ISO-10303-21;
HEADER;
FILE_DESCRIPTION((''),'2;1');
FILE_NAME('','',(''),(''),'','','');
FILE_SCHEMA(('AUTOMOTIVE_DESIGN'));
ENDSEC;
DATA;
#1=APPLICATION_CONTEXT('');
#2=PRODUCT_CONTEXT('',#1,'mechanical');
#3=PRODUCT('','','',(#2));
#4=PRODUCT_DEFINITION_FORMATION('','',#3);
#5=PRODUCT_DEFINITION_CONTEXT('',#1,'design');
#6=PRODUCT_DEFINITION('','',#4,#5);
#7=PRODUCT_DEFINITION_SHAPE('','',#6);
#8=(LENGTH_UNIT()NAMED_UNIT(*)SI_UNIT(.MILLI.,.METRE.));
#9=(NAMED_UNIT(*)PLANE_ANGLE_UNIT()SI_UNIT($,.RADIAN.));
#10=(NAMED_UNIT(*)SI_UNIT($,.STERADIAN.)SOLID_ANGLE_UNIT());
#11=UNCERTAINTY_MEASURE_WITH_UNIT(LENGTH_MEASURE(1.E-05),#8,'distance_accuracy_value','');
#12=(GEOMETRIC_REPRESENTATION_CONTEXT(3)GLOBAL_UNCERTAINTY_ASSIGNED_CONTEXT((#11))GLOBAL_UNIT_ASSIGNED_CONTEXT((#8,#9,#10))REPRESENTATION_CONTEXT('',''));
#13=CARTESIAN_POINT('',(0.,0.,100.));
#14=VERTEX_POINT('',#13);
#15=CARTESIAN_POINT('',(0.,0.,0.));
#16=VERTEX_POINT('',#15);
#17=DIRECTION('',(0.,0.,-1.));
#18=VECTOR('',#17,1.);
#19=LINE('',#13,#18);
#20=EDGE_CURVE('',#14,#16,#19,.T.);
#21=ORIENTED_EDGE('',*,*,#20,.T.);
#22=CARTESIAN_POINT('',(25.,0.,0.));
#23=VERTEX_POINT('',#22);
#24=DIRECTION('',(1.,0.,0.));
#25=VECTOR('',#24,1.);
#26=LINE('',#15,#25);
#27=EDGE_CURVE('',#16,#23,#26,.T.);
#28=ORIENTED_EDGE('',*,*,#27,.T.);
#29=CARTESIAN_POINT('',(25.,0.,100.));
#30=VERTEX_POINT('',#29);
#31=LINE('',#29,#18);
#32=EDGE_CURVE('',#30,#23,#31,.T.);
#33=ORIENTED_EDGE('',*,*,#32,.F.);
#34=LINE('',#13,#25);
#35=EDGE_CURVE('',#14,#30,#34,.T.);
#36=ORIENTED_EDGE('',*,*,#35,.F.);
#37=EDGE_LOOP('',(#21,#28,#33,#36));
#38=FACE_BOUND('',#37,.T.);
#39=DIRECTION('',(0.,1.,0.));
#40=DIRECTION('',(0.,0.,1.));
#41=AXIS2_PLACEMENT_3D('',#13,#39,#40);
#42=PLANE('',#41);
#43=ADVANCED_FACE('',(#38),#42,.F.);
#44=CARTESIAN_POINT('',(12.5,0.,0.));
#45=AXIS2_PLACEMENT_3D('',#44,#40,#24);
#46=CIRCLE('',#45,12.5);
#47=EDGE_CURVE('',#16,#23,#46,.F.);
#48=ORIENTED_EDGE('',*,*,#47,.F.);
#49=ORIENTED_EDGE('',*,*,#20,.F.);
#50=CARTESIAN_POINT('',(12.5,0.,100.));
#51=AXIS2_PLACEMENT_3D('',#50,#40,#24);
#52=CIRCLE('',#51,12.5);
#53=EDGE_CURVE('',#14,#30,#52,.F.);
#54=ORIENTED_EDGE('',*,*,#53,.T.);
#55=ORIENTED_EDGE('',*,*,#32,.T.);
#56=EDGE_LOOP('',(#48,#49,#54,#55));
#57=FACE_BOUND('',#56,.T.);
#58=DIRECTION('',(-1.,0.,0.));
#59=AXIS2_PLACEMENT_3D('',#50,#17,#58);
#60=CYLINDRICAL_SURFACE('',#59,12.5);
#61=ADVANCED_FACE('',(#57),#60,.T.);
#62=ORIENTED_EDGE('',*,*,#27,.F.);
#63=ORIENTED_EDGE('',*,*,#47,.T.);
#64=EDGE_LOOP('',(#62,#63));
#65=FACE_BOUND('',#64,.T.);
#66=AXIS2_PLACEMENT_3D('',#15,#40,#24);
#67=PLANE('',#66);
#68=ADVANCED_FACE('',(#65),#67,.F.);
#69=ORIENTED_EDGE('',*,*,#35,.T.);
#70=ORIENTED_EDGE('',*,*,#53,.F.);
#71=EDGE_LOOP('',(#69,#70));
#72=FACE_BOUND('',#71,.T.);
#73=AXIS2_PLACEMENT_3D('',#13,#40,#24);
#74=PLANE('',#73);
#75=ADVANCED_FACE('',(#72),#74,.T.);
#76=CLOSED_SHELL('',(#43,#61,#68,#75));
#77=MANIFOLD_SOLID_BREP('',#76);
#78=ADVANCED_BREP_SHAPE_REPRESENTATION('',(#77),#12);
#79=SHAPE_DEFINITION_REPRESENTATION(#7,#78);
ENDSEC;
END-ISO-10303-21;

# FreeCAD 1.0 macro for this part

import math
import FreeCAD as App
import Part
import Sketcher
from FreeCAD import Vector
Q = App.Units.Quantity

doc = App.newDocument("Part")
body = doc.addObject("PartDesign::Body", "Body")

# Sketch on XY plane
sketch1 = body.newObject("Sketcher::SketchObject", "Sketch")
sketch1.AttachmentSupport = (doc.getObject("XY_Plane"), [""])
sketch1.MapMode = "FlatFace"
sketch1.addGeometry(Part.ArcOfCircle(Part.Circle(Vector(12, 0, 0), Vector(0, 0, 1), 12), math.radians(0), math.radians(180)), False)
sketch1.addGeometry(Part.LineSegment(Vector(0, 0, 0), Vector(25, 0, 0)), False)
sketch1.addConstraint(Sketcher.Constraint("Coincident", 0, 1, 1, 2))
sketch1.addConstraint(Sketcher.Constraint("Coincident", 1, 1, 0, 2))
sketch1.addConstraint(Sketcher.Constraint("Horizontal", 1))
sketch1.addConstraint(Sketcher.Constraint("Coincident", 1, 1, -1, 1))
sketch1.addConstraint(Sketcher.Constraint("PointOnObject", 0, 3, -1))
sketch1.addConstraint(Sketcher.Constraint("Radius", 0, Q("12.5 mm")))
pad1 = body.newObject("PartDesign::Pad", "Pad")
pad1.Profile = sketch1
pad1.Length = 100

doc.recompute()
